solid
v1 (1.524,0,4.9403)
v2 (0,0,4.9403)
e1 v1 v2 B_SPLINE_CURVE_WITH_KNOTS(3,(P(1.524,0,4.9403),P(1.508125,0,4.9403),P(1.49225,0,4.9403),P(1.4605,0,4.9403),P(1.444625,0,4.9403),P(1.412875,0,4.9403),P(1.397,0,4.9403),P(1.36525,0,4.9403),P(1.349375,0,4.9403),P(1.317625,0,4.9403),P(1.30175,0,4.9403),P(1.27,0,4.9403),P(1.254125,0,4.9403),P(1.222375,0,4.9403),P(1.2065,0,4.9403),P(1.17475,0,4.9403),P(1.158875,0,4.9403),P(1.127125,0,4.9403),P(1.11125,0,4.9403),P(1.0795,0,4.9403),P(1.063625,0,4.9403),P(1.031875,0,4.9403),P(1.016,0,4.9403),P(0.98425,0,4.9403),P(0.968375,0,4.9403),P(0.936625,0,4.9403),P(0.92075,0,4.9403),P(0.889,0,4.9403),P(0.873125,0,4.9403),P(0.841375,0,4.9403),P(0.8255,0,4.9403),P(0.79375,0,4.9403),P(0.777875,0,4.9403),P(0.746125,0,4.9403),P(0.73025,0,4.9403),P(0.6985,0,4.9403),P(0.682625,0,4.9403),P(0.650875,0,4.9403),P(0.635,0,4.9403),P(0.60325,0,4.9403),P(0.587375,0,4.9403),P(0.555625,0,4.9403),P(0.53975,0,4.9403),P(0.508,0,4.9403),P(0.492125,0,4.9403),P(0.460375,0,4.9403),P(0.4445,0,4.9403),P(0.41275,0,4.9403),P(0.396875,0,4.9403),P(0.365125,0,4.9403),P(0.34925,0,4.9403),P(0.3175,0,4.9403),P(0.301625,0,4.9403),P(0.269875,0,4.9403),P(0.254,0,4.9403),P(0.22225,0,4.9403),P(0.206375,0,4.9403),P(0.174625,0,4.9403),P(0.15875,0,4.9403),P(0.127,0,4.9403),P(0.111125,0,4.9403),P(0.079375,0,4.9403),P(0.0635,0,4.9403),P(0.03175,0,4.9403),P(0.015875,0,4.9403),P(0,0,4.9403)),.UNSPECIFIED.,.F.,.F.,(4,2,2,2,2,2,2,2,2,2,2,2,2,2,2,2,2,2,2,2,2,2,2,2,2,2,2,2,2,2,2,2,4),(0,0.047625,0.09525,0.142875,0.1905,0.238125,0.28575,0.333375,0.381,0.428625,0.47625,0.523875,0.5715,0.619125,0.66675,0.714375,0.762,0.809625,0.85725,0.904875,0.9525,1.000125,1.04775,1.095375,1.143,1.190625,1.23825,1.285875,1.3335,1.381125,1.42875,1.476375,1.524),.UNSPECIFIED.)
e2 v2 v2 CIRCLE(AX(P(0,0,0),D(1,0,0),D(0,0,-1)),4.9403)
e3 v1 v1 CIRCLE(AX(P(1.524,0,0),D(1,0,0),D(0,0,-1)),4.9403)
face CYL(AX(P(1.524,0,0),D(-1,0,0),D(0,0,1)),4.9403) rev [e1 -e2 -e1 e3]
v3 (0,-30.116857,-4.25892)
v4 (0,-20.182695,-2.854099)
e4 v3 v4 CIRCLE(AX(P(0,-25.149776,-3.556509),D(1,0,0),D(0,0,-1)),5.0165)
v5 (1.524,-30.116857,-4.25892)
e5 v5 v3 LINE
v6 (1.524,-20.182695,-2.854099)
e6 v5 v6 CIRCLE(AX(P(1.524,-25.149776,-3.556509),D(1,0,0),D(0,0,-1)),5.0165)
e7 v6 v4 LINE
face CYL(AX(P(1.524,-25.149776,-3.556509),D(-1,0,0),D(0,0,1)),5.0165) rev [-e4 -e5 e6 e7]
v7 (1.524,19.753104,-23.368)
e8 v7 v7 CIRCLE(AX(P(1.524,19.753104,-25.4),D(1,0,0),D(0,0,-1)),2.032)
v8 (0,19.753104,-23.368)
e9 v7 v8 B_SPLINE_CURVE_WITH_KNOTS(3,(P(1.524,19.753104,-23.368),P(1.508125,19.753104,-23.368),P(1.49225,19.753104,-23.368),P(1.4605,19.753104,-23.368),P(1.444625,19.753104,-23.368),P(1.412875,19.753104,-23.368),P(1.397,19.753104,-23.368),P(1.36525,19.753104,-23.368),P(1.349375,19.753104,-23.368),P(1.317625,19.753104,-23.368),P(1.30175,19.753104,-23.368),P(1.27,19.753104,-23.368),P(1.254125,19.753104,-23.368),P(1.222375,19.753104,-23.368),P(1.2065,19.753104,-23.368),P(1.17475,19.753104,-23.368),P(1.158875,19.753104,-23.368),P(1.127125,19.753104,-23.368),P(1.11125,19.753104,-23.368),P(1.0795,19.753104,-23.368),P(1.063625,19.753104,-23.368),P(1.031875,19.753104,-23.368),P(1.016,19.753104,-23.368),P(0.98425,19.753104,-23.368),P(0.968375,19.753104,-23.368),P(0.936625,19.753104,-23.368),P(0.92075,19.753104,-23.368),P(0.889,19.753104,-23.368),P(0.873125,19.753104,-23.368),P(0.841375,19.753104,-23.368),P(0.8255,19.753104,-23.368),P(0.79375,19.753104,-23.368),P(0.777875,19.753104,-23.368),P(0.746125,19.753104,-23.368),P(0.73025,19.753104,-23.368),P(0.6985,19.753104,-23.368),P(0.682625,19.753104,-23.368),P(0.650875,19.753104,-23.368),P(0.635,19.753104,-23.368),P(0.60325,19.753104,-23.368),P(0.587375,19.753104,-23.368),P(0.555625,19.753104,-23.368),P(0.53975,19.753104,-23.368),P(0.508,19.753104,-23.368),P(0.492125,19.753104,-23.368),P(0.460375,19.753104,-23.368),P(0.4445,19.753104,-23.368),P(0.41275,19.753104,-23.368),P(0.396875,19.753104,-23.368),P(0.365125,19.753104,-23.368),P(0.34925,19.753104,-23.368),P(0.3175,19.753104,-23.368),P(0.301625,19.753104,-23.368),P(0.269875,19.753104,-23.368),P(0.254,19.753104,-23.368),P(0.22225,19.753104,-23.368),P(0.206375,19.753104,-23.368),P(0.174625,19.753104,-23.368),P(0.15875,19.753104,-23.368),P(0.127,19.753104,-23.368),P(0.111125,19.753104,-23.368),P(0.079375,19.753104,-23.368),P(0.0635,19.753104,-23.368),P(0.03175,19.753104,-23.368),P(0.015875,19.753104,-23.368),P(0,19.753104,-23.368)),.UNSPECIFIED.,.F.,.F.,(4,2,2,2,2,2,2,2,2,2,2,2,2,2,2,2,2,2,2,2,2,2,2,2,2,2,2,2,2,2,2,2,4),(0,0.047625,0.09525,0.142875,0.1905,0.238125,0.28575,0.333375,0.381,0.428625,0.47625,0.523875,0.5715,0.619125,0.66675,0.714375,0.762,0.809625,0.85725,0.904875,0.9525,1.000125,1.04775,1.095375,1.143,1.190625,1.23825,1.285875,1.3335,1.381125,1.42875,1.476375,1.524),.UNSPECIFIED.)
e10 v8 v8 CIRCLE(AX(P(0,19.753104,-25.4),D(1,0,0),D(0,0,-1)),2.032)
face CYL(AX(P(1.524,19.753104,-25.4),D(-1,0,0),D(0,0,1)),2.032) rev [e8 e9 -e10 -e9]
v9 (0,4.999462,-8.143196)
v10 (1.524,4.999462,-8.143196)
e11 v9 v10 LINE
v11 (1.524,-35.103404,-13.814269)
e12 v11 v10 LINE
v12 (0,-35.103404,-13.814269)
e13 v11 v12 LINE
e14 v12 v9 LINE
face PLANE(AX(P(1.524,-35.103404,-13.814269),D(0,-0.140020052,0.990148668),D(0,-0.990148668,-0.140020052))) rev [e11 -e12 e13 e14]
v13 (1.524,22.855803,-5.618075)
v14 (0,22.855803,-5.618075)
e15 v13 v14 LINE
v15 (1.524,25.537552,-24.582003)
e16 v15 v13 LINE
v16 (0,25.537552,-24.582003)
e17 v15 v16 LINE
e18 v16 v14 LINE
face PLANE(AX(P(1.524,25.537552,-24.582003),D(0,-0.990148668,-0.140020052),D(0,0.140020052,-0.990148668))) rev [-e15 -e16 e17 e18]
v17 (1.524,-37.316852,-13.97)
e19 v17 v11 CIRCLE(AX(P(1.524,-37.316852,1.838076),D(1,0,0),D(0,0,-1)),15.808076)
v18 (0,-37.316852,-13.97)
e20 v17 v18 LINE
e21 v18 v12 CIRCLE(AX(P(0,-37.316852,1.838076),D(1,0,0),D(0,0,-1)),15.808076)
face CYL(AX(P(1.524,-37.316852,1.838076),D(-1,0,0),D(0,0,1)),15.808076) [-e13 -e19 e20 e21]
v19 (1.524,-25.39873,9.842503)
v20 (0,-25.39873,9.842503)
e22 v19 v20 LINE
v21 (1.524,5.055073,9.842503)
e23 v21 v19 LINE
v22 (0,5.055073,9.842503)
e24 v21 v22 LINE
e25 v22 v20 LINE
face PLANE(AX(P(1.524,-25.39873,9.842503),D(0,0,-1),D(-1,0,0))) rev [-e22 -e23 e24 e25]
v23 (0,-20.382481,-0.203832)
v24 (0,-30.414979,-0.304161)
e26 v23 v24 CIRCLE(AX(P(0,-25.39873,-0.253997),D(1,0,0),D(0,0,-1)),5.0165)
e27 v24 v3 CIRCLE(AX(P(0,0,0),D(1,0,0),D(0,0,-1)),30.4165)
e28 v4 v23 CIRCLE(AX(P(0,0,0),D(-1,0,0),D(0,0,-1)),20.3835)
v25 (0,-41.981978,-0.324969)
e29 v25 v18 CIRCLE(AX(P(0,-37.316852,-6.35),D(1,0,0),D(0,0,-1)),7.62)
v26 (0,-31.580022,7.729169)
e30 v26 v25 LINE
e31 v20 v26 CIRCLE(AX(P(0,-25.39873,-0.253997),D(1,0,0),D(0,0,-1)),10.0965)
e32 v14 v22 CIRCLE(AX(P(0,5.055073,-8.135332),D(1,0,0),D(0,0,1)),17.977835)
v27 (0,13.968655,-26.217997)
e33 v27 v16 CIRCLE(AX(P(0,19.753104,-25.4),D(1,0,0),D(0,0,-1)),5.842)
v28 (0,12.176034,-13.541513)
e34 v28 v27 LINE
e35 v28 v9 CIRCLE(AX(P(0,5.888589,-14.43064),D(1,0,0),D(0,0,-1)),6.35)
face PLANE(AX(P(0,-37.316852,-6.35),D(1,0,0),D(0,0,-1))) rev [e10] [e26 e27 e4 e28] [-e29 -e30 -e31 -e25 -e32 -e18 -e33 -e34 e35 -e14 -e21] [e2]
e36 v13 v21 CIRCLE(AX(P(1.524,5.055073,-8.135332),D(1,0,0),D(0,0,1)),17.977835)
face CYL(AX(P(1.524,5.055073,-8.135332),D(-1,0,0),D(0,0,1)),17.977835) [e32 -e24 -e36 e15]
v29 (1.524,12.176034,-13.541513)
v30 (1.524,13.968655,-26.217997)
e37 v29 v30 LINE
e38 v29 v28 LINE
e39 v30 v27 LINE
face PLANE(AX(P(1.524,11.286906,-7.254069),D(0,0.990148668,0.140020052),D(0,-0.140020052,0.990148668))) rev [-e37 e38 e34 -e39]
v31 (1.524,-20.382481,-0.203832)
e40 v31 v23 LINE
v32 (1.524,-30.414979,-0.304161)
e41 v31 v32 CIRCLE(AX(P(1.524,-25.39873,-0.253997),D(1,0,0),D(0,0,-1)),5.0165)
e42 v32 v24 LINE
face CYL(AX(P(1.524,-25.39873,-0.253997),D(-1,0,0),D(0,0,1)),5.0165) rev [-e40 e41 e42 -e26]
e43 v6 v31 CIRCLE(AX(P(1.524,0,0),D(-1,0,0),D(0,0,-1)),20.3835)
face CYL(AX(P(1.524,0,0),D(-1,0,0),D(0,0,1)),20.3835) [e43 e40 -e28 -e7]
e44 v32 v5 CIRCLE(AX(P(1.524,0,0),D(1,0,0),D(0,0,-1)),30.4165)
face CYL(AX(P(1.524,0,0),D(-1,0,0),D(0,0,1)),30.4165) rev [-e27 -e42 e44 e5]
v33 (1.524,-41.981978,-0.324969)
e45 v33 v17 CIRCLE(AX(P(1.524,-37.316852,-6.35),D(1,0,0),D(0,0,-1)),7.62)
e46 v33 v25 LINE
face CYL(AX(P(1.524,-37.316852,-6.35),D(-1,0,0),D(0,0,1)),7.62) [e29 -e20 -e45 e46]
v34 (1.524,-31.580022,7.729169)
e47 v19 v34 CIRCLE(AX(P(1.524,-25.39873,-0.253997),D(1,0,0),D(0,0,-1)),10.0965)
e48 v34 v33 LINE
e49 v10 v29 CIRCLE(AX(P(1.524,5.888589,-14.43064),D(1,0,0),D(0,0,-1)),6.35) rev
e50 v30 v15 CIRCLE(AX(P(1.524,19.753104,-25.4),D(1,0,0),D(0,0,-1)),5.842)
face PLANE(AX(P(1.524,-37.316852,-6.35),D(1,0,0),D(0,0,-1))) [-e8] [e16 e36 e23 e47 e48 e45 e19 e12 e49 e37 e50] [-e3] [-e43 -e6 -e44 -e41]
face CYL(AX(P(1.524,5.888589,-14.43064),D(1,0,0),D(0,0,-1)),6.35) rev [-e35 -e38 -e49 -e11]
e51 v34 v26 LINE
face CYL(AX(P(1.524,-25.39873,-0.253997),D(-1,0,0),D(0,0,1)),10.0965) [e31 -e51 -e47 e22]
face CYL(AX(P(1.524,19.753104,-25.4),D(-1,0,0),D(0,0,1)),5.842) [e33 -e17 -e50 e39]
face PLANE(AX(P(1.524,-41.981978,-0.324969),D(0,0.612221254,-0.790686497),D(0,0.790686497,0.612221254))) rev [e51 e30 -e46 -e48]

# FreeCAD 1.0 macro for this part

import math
import FreeCAD as App
import Part
import Sketcher
Q = App.Units.Quantity


def edges_at(feature, points):
    """Names of the edges that pass closest to the given points."""
    edges = feature.Shape.Edges
    near = lambda p: min(range(len(edges)), key=lambda i: edges[i].distToShape(Part.Vertex(*p))[0])
    return sorted({f"Edge{near(p) + 1}" for p in points})

doc = App.newDocument("Part")
body = doc.addObject("PartDesign::Body", "Body")

sketch1 = body.newObject("Sketcher::SketchObject", "Sketch")
sketch1.AttachmentSupport = (doc.getObject("YZ_Plane"), [""])
sketch1.MapMode = "FlatFace"
sketch1.addGeometry([
    Part.LineSegment(App.Vector(-35.1, -13.8, 0), App.Vector(11.3, -7.3, 0)),
    Part.LineSegment(App.Vector(11.3, -7.3, 0), App.Vector(14, -26.2, 0)),
    Part.ArcOfCircle(Part.Circle(App.Vector(19.8, -25.4, 0), App.Vector(0, 0, 1), 5.8), math.radians(-172), math.radians(8)),
    Part.LineSegment(App.Vector(25.5, -24.6, 0), App.Vector(22.9, -5.6, 0)),
    Part.ArcOfCircle(Part.Circle(App.Vector(5.1, -8.1, 0), App.Vector(0, 0, 1), 18), math.radians(8), math.radians(90)),
    Part.LineSegment(App.Vector(5.1, 9.8, 0), App.Vector(-25.4, 9.8, 0)),
    Part.ArcOfCircle(Part.Circle(App.Vector(-25.4, -0.3, 0), App.Vector(0, 0, 1), 10.1), math.radians(90), math.radians(128)),
    Part.LineSegment(App.Vector(-31.6, 7.7, 0), App.Vector(-42, -0.3, 0)),
    Part.ArcOfCircle(Part.Circle(App.Vector(-37.3, -6.3, 0), App.Vector(0, 0, 1), 7.6), math.radians(128), math.radians(270)),
    Part.ArcOfCircle(Part.Circle(App.Vector(-37.3, 1.8, 0), App.Vector(0, 0, 1), 15.8), math.radians(-90), math.radians(-81.95)),
    Part.ArcOfCircle(Part.Circle(App.Vector(0, 0, 0), App.Vector(0, 0, 1), 30.4), math.radians(-179.43), math.radians(-171.95)),
    Part.ArcOfCircle(Part.Circle(App.Vector(-25.4, -0.3, 0), App.Vector(0, 0, 1), 5), math.radians(1), math.radians(181)),
    Part.ArcOfCircle(Part.Circle(App.Vector(0, 0, 0), App.Vector(0, 0, 1), 20.4), math.radians(-179.43), math.radians(-171.95)),
    Part.ArcOfCircle(Part.Circle(App.Vector(-25.1, -3.6, 0), App.Vector(0, 0, 1), 5), math.radians(-172), math.radians(8)),
    Part.Circle(App.Vector(0, 0, 0), App.Vector(0, 0, 1), 4.9),
    Part.Circle(App.Vector(19.8, -25.4, 0), App.Vector(0, 0, 1), 2),
], False)
sketch1.addConstraint([
    Sketcher.Constraint("Coincident", 0, 2, 1, 1),
    Sketcher.Constraint("Tangent", 1, 2, 2, 1),
    Sketcher.Constraint("Tangent", 2, 2, 3, 1),
    Sketcher.Constraint("Tangent", 3, 2, 4, 1),
    Sketcher.Constraint("Tangent", 4, 2, 5, 1),
    Sketcher.Constraint("Tangent", 5, 2, 6, 1),
    Sketcher.Constraint("Tangent", 6, 2, 7, 1),
    Sketcher.Constraint("Tangent", 7, 2, 8, 1),
    Sketcher.Constraint("Tangent", 8, 2, 9, 1),
    Sketcher.Constraint("Tangent", 9, 2, 0, 1),
    Sketcher.Constraint("Tangent", 10, 1, 11, 2),
    Sketcher.Constraint("Tangent", 11, 1, 12, 1),
    Sketcher.Constraint("Tangent", 12, 2, 13, 2),
    Sketcher.Constraint("Tangent", 13, 1, 10, 2),
    Sketcher.Constraint("Horizontal", 5),
    Sketcher.Constraint("Coincident", 10, 3, -1, 1),
    Sketcher.Constraint("Coincident", 12, 3, -1, 1),
    Sketcher.Constraint("Coincident", 14, 3, -1, 1),
    Sketcher.Constraint("Coincident", 11, 3, 6, 3),
    Sketcher.Constraint("Coincident", 15, 3, 2, 3),
    Sketcher.Constraint("Perpendicular", 0, 1),
    Sketcher.Constraint("Parallel", 1, 3),
    Sketcher.Constraint("Vertical", 8, 3, 9, 3),
    Sketcher.Constraint("Equal", 1, 3),
    Sketcher.Constraint("Radius", 8, Q("0.3 in")),
    Sketcher.Constraint("Diameter", 15, Q("0.16 in")),
    Sketcher.Constraint("Radius", 2, Q("0.23 in")),
    Sketcher.Constraint("Diameter", 14, Q("0.389 in")),
    Sketcher.Constraint("DistanceY", 2, 3, -1, 1, Q("1 in")),
    Sketcher.Constraint("Radius", 6, Q("0.3975 in")),
    Sketcher.Constraint("Radius", 10, Q("1.1975 in")),
    Sketcher.Constraint("Radius", 11, Q("0.1975 in")),
    Sketcher.Constraint("DistanceY", 6, 3, -1, 1, Q("0.0099999 in")),
    Sketcher.Constraint("DistanceY", 8, 3, -1, 1, Q("0.25 in")),
    Sketcher.Constraint("Radius", 4, 17.977835),
    Sketcher.Constraint("Radius", 9, 15.808076),
    Sketcher.Constraint("Distance", 7, 13.155601),
    Sketcher.Constraint("DistanceY", 12, 2, -1, 1, 2.854099),
    Sketcher.Constraint("DistanceX", 2, 3, 3, 2, 3.1027),
])
pad1 = body.newObject("PartDesign::Pad", "Pad")
pad1.Profile = sketch1
pad1.Length = Q("0.06 in")
doc.recompute()

fillet = body.newObject("PartDesign::Fillet", "Fillet")
fillet.Base = (pad1, edges_at(pad1, [(0.762, 11.287, -7.254)]))
fillet.Radius = Q("0.25 in")

doc.recompute()
